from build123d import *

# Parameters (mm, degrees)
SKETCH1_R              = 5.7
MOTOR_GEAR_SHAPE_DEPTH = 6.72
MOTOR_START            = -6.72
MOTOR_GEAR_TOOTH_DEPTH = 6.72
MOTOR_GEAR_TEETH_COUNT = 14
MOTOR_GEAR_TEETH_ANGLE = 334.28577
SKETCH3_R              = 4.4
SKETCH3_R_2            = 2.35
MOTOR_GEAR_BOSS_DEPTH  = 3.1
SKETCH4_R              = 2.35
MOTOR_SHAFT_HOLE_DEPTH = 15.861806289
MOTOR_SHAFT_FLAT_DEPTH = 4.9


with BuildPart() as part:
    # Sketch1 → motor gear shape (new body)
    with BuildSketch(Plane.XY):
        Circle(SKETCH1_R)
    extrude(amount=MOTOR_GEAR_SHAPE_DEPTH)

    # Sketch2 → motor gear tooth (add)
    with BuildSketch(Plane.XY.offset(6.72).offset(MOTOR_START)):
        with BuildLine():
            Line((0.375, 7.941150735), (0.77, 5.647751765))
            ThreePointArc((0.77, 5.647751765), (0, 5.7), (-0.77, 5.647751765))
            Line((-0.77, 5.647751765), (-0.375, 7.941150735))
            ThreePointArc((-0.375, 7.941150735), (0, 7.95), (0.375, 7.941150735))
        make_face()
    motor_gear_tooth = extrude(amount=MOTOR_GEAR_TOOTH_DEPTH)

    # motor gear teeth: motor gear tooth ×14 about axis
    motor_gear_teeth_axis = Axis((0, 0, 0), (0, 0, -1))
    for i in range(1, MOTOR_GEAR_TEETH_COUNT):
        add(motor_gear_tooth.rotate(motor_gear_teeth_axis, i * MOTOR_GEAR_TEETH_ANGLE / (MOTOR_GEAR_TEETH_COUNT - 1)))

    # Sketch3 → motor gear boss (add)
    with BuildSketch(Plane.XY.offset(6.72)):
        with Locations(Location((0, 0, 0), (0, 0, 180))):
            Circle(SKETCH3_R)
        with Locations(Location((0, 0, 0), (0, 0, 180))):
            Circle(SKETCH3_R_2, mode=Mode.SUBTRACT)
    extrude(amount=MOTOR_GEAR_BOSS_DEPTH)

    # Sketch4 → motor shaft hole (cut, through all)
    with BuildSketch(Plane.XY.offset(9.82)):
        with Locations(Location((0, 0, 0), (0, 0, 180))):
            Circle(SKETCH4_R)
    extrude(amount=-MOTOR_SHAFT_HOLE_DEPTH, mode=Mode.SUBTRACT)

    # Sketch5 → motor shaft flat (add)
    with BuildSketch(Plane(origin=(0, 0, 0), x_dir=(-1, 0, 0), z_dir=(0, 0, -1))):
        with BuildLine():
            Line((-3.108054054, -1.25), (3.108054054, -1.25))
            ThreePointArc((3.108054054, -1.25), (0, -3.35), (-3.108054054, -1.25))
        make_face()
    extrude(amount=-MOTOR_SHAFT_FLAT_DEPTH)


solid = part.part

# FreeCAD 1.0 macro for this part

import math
import FreeCAD as App
import Part
import Sketcher
from FreeCAD import Vector
Q = App.Units.Quantity

doc = App.newDocument("Part")
params = doc.addObject("Spreadsheet::Sheet", "Params")
for row, (alias, value) in enumerate([
    ("sketch1_diameter", "11.4 mm"),
    ("pad1_length", "6.72 mm"),
    ("sketch2_radius", "5.7 mm"),
    ("sketch2_radius2", "7.95 mm"),
    ("pad2_length", "6.72 mm"),
    ("sketch3_diameter", "8.8 mm"),
    ("sketch3_diameter2", "4.7 mm"),
    ("pad3_length", "3.1 mm"),
    ("sketch4_diameter", "4.7 mm"),
    ("sketch5_radius", "3.35 mm"),
    ("pad4_length", "4.9 mm"),
], start=1):
    params.set(f"A{row}", alias)
    params.set(f"B{row}", "=" + value)
    params.setAlias(f"B{row}", alias)

body = doc.addObject("PartDesign::Body", "Body")

sketch1 = doc.addObject("Sketcher::SketchObject", "Sketch")
body.addObject(sketch1)
sketch1.AttachmentSupport = (doc.XY_Plane, [""])
sketch1.MapMode = "FlatFace"
sketch1.addGeometry(Part.Circle(Vector(0, 0, 0), Vector(0, 0, 1), 6), False)
sketch1.addConstraint(Sketcher.Constraint("Coincident", 0, 3, -1, 1))
sketch1.addConstraint(Sketcher.Constraint("Diameter", 0, Q("11.4 mm")))
sketch1.setExpression("Constraints[1]", "Params.sketch1_diameter")
pad1 = doc.addObject("PartDesign::Pad", "Pad")
body.addObject(pad1)
pad1.Profile = sketch1
pad1.setExpression("Length", "Params.pad1_length")

sketch2 = doc.addObject("Sketcher::SketchObject", "Sketch001")
body.addObject(sketch2)
sketch2.AttachmentSupport = (doc.XY_Plane, [""])
sketch2.MapMode = "FlatFace"
sketch2.addGeometry(Part.LineSegment(Vector(0.8, 5.6, 0), Vector(0.4, 7.9, 0)), False)
sketch2.addGeometry(Part.ArcOfCircle(Part.Circle(Vector(0, 0, 0), Vector(0, 0, 1), 7.9), math.radians(87.3), math.radians(92.7)), False)
sketch2.addGeometry(Part.LineSegment(Vector(-0.4, 7.9, 0), Vector(-0.8, 5.6, 0)), False)
sketch2.addGeometry(Part.ArcOfCircle(Part.Circle(Vector(0, 0, 0), Vector(0, 0, 1), 5.7), math.radians(82.24), math.radians(97.76)), False)
sketch2.addConstraint(Sketcher.Constraint("Coincident", 0, 2, 1, 1))
sketch2.addConstraint(Sketcher.Constraint("Coincident", 1, 2, 2, 1))
sketch2.addConstraint(Sketcher.Constraint("Coincident", 2, 2, 3, 2))
sketch2.addConstraint(Sketcher.Constraint("Coincident", 3, 1, 0, 1))
sketch2.addConstraint(Sketcher.Constraint("Coincident", 1, 3, -1, 1))
sketch2.addConstraint(Sketcher.Constraint("Coincident", 3, 3, -1, 1))
sketch2.addConstraint(Sketcher.Constraint("Horizontal", 0, 2, 1, 2))
sketch2.addConstraint(Sketcher.Constraint("Horizontal", 2, 2, 3, 1))
sketch2.addConstraint(Sketcher.Constraint("Radius", 3, Q("5.7 mm")))
sketch2.addConstraint(Sketcher.Constraint("Radius", 1, Q("7.95 mm")))
sketch2.addConstraint(Sketcher.Constraint("DistanceX", 2, 2, -1, 1, Q("0.77 mm")))
sketch2.addConstraint(Sketcher.Constraint("DistanceX", 1, 2, 0, 2, Q("0.75 mm")))
sketch2.setExpression("Constraints[8]", "Params.sketch2_radius")
sketch2.setExpression("Constraints[9]", "Params.sketch2_radius2")
pad2 = doc.addObject("PartDesign::Pad", "Pad001")
body.addObject(pad2)
pad2.Profile = sketch2
pad2.setExpression("Length", "Params.pad2_length")
doc.recompute()

polarpattern = doc.addObject("PartDesign::PolarPattern", "PolarPattern")
body.addObject(polarpattern)
polarpattern.Originals = [pad2]
polarpattern.Axis = (doc.Z_Axis, [""])
polarpattern.Angle = 334.28577
polarpattern.Occurrences = 14
polarpattern.Reversed = True
body.Tip = polarpattern

sketch3 = doc.addObject("Sketcher::SketchObject", "Sketch002")
body.addObject(sketch3)
sketch3.AttachmentSupport = (doc.XY_Plane, [""])
sketch3.MapMode = "FlatFace"
sketch3.AttachmentOffset = App.Placement(Vector(0, 0, 6.72), App.Rotation())
sketch3.addGeometry(Part.Circle(Vector(0, 0, 0), Vector(0, 0, 1), 4.4), False)
sketch3.addGeometry(Part.Circle(Vector(0, 0, 0), Vector(0, 0, 1), 2.4), False)
sketch3.addConstraint(Sketcher.Constraint("Coincident", 0, 3, -1, 1))
sketch3.addConstraint(Sketcher.Constraint("Coincident", 1, 3, -1, 1))
sketch3.addConstraint(Sketcher.Constraint("Diameter", 0, Q("8.8 mm")))
sketch3.addConstraint(Sketcher.Constraint("Diameter", 1, Q("4.7 mm")))
sketch3.setExpression("Constraints[2]", "Params.sketch3_diameter")
sketch3.setExpression("Constraints[3]", "Params.sketch3_diameter2")
pad3 = doc.addObject("PartDesign::Pad", "Pad002")
body.addObject(pad3)
pad3.Profile = sketch3
pad3.setExpression("Length", "Params.pad3_length")

sketch4 = doc.addObject("Sketcher::SketchObject", "Sketch003")
body.addObject(sketch4)
sketch4.AttachmentSupport = (doc.XY_Plane, [""])
sketch4.MapMode = "FlatFace"
sketch4.AttachmentOffset = App.Placement(Vector(0, 0, 9.82), App.Rotation())
sketch4.addGeometry(Part.Circle(Vector(0, 0, 0), Vector(0, 0, 1), 2.4), False)
sketch4.addConstraint(Sketcher.Constraint("Coincident", 0, 3, -1, 1))
sketch4.addConstraint(Sketcher.Constraint("Diameter", 0, Q("4.7 mm")))
sketch4.setExpression("Constraints[1]", "Params.sketch4_diameter")
pocket1 = doc.addObject("PartDesign::Pocket", "Pocket")
body.addObject(pocket1)
pocket1.Profile = sketch4
pocket1.Type = "ThroughAll"

sketch5 = doc.addObject("Sketcher::SketchObject", "Sketch004")
body.addObject(sketch5)
sketch5.AttachmentSupport = (doc.XY_Plane, [""])
sketch5.MapMode = "FlatFace"
sketch5.addGeometry(Part.LineSegment(Vector(-3.1, -1.2, 0), Vector(3.1, -1.2, 0)), False)
sketch5.addGeometry(Part.ArcOfCircle(Part.Circle(Vector(0, 0, 0), Vector(0, 0, 1), 3.4), math.radians(-158), math.radians(-22)), False)
sketch5.addConstraint(Sketcher.Constraint("Coincident", 0, 1, 1, 1))
sketch5.addConstraint(Sketcher.Constraint("Coincident", 1, 2, 0, 2))
sketch5.addConstraint(Sketcher.Constraint("Horizontal", 0))
sketch5.addConstraint(Sketcher.Constraint("Coincident", 1, 3, -1, 1))
sketch5.addConstraint(Sketcher.Constraint("Radius", 1, Q("3.35 mm")))
sketch5.addConstraint(Sketcher.Constraint("DistanceY", 0, 1, -1, 1, Q("1.25 mm")))
sketch5.setExpression("Constraints[4]", "Params.sketch5_radius")
pad4 = doc.addObject("PartDesign::Pad", "Pad003")
body.addObject(pad4)
pad4.Profile = sketch5
pad4.setExpression("Length", "Params.pad4_length")

doc.recompute()
